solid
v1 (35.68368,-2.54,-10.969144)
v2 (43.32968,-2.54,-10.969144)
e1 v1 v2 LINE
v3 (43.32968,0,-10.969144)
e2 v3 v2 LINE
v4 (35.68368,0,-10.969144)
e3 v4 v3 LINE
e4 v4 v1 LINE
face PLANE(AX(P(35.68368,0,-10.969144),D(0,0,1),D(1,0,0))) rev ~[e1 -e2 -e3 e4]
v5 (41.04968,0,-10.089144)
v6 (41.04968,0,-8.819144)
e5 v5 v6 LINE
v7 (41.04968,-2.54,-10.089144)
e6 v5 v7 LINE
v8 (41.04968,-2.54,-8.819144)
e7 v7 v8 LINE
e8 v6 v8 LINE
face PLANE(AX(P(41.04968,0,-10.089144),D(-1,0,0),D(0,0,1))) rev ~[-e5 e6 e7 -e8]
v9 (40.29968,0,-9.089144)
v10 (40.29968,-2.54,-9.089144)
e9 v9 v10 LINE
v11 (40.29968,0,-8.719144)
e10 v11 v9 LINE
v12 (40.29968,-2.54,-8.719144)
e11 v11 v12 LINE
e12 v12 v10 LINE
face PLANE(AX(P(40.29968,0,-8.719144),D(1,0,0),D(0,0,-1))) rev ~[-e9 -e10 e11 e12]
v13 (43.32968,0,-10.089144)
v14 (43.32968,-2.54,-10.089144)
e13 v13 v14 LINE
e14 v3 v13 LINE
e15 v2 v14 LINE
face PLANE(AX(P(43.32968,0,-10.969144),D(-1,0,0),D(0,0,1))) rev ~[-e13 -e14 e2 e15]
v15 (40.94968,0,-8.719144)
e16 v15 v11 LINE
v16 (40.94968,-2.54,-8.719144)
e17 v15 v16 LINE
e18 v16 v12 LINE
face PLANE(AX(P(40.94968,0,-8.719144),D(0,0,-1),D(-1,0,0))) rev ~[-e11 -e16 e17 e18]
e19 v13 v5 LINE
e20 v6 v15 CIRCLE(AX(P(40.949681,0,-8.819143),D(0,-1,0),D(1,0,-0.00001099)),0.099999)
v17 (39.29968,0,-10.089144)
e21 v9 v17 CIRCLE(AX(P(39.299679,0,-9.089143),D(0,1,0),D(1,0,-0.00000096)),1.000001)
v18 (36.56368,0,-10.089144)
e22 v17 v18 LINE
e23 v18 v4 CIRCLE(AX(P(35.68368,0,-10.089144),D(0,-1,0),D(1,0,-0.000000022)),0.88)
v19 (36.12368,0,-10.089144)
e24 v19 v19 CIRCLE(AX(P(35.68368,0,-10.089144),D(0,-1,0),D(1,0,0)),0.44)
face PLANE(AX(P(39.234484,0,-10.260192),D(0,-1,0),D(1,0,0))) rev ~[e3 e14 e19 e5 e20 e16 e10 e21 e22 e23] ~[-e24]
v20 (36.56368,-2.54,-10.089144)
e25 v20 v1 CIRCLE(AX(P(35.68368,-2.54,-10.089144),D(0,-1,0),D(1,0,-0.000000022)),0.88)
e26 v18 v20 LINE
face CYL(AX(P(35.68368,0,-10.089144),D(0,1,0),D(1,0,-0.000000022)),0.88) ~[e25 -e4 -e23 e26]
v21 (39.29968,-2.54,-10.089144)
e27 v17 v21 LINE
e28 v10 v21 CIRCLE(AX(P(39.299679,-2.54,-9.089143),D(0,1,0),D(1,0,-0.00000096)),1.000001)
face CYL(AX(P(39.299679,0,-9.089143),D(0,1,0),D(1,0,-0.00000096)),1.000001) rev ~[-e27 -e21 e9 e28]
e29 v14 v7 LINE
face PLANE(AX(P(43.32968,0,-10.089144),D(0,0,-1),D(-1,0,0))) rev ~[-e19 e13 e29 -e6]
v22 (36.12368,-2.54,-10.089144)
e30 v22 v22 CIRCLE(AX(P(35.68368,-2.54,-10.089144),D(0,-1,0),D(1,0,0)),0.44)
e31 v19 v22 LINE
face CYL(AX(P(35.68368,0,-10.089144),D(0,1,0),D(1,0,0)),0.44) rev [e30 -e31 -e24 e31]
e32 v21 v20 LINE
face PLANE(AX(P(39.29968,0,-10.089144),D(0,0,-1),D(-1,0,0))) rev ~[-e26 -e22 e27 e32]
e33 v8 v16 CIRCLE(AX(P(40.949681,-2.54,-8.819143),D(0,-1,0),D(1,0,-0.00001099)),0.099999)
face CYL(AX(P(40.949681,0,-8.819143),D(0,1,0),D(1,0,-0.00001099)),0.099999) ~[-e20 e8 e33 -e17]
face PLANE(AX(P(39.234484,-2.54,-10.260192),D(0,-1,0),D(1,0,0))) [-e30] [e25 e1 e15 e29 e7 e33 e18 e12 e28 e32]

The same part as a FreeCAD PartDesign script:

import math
import FreeCAD as App
import Part
import Sketcher
Q = App.Units.Quantity

doc = App.newDocument("Part")
body = doc.addObject("PartDesign::Body", "Body")

sketch1 = body.newObject("Sketcher::SketchObject", "Sketch")
sketch1.AttachmentSupport = (doc.getObject("XZ_Plane"), [""])
sketch1.MapMode = "FlatFace"
sketch1.addGeometry([
    Part.ArcOfCircle(Part.Circle(App.Vector(35.68, -10.09, 0), App.Vector(0, 0, 1), 0.88), math.radians(0), math.radians(270)),
    Part.LineSegment(App.Vector(35.68, -10.97, 0), App.Vector(43.33, -10.97, 0)),
    Part.LineSegment(App.Vector(43.33, -10.97, 0), App.Vector(43.33, -10.09, 0)),
    Part.LineSegment(App.Vector(43.33, -10.09, 0), App.Vector(41.05, -10.09, 0)),
    Part.LineSegment(App.Vector(41.05, -10.09, 0), App.Vector(41.05, -8.82, 0)),
    Part.ArcOfCircle(Part.Circle(App.Vector(40.95, -8.82, 0), App.Vector(0, 0, 1), 0.1), math.radians(0), math.radians(90)),
    Part.LineSegment(App.Vector(40.95, -8.72, 0), App.Vector(40.3, -8.72, 0)),
    Part.LineSegment(App.Vector(40.3, -8.72, 0), App.Vector(40.3, -9.09, 0)),
    Part.ArcOfCircle(Part.Circle(App.Vector(39.3, -9.09, 0), App.Vector(0, 0, 1), 1), math.radians(-90), math.radians(0)),
    Part.LineSegment(App.Vector(39.3, -10.09, 0), App.Vector(36.56, -10.09, 0)),
    Part.Circle(App.Vector(35.68, -10.09, 0), App.Vector(0, 0, 1), 0.44),
], False)
sketch1.addConstraint([
    Sketcher.Constraint("Tangent", 0, 2, 1, 1),
    Sketcher.Constraint("Coincident", 1, 2, 2, 1),
    Sketcher.Constraint("Coincident", 2, 2, 3, 1),
    Sketcher.Constraint("Coincident", 3, 2, 4, 1),
    Sketcher.Constraint("Coincident", 4, 2, 5, 1),
    Sketcher.Constraint("Coincident", 5, 2, 6, 1),
    Sketcher.Constraint("Coincident", 6, 2, 7, 1),
    Sketcher.Constraint("Tangent", 7, 2, 8, 2),
    Sketcher.Constraint("Tangent", 8, 1, 9, 1),
    Sketcher.Constraint("Coincident", 9, 2, 0, 1),
    Sketcher.Constraint("Horizontal", 1),
    Sketcher.Constraint("Vertical", 2),
    Sketcher.Constraint("Horizontal", 3),
    Sketcher.Constraint("Vertical", 4),
    Sketcher.Constraint("Horizontal", 6),
    Sketcher.Constraint("Vertical", 7),
    Sketcher.Constraint("Horizontal", 9),
    Sketcher.Constraint("Coincident", 10, 3, 0, 3),
    Sketcher.Constraint("Horizontal", 10, 3, 2, 2),
    Sketcher.Constraint("Horizontal", 5, 3, 4, 2),
    Sketcher.Constraint("Horizontal", 3, 2, 8, 1),
    Sketcher.Constraint("DistanceY", 4, 1, 4, 2, Q("0.05 in")),
    Sketcher.Constraint("Diameter", 10, Q("0.88 mm")),
    Sketcher.Constraint("Radius", 0, Q("0.88 mm")),
    Sketcher.Constraint("Radius", 5, Q("0.099999 mm")),
    Sketcher.Constraint("Radius", 8, Q("1.000001 mm")),
    Sketcher.Constraint("DistanceX", 1, 1, 1, 2, Q("7.646 mm")),
    Sketcher.Constraint("DistanceX", 3, 2, 3, 1, Q("2.28 mm")),
    Sketcher.Constraint("DistanceX", 6, 2, 6, 1, Q("0.65 mm")),
    Sketcher.Constraint("DistanceX", 9, 2, 9, 1, Q("2.736 mm")),
    Sketcher.Constraint("DistanceX", -1, 1, 0, 3, Q("35.68368 mm")),
    Sketcher.Constraint("DistanceY", 0, 3, -1, 1, Q("10.089144 mm")),
])
pad1 = body.newObject("PartDesign::Pad", "Pad")
pad1.Profile = sketch1
pad1.Length = Q("0.1 in")

doc.recompute()
